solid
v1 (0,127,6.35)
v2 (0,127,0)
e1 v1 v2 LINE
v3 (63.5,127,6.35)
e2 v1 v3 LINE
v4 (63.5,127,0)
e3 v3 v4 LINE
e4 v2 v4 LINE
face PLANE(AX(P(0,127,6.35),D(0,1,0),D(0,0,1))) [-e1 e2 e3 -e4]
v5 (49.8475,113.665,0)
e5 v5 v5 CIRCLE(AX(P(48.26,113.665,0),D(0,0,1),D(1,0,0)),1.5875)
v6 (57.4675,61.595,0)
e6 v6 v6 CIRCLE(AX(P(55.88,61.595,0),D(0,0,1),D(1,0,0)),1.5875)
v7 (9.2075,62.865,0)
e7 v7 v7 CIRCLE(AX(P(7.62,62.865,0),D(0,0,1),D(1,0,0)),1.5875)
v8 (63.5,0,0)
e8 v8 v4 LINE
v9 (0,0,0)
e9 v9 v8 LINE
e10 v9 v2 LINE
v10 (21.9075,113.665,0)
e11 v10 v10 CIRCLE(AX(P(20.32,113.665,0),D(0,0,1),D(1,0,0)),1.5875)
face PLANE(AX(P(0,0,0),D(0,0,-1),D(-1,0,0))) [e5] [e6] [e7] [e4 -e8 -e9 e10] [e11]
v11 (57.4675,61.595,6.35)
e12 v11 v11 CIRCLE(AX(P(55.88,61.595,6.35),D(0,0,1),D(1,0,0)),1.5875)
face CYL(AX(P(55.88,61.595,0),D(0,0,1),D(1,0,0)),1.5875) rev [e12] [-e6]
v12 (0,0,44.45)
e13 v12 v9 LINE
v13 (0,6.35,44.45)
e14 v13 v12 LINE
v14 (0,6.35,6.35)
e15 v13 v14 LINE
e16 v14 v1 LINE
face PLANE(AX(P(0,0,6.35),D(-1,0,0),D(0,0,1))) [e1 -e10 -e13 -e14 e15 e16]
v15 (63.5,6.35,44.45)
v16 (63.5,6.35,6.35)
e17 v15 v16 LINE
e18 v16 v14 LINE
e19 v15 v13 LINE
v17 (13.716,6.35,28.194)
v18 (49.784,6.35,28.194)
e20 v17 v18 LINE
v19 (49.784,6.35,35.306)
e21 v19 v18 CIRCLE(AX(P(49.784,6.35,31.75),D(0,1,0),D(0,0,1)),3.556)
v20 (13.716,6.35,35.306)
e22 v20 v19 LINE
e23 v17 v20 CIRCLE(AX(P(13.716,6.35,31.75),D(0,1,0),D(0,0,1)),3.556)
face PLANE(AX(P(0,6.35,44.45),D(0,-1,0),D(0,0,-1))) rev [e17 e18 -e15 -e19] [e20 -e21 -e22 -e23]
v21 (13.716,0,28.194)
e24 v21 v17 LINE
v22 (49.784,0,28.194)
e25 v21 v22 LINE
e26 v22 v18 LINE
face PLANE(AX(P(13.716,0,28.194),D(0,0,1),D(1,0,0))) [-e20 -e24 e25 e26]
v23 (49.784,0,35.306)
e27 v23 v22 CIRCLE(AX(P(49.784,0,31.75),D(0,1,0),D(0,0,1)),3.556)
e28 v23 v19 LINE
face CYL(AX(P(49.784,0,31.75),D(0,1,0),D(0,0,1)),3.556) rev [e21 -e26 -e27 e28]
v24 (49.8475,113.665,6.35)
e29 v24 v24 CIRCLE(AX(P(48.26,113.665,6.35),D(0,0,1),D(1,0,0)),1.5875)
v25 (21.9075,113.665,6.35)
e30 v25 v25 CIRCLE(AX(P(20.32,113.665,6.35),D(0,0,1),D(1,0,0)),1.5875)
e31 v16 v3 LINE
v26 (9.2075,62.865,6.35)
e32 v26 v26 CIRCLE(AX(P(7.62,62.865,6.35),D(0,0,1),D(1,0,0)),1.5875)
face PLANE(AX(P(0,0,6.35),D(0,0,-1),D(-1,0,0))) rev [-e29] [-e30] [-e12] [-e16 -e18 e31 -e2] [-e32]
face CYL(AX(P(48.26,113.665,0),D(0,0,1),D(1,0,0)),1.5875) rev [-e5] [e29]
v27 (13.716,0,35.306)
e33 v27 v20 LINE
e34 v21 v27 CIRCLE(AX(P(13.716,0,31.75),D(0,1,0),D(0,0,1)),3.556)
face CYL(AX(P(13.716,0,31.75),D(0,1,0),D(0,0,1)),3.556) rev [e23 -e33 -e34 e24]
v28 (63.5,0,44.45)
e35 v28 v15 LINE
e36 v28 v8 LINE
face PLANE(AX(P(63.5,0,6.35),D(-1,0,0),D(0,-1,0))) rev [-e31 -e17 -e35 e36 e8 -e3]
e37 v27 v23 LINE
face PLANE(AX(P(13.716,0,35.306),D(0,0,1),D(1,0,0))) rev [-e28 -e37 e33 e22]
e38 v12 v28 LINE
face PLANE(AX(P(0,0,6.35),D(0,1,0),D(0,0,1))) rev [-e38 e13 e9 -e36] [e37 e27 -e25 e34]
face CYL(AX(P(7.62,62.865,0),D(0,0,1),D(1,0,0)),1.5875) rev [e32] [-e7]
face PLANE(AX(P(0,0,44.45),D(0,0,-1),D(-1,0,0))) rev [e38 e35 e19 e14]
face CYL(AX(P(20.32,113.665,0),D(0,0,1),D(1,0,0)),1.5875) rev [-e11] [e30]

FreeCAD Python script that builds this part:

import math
import FreeCAD as App
import Part
import Sketcher
from FreeCAD import Vector
Q = App.Units.Quantity

doc = App.newDocument("Part")
body = doc.addObject("PartDesign::Body", "Body")

# Sketch on XY plane
sketch1 = body.newObject("Sketcher::SketchObject", "Sketch")
sketch1.AttachmentSupport = (doc.getObject("XY_Plane"), [""])
sketch1.MapMode = "FlatFace"
sketch1.addGeometry([
    Part.LineSegment(Vector(0, 127, 0), Vector(0, 0, 0)),
    Part.LineSegment(Vector(0, 0, 0), Vector(63.5, 0, 0)),
    Part.LineSegment(Vector(63.5, 0, 0), Vector(63.5, 127, 0)),
    Part.LineSegment(Vector(63.5, 127, 0), Vector(0, 127, 0)),
], False)
sketch1.addConstraint([
    Sketcher.Constraint("Coincident", 0, 2, 1, 1),
    Sketcher.Constraint("Coincident", 1, 2, 2, 1),
    Sketcher.Constraint("Coincident", 2, 2, 3, 1),
    Sketcher.Constraint("Coincident", 3, 2, 0, 1),
    Sketcher.Constraint("Vertical", 0),
    Sketcher.Constraint("Horizontal", 1),
    Sketcher.Constraint("Vertical", 2),
    Sketcher.Constraint("Horizontal", 3),
    Sketcher.Constraint("Coincident", 0, 2, -1, 1),
    Sketcher.Constraint("DistanceY", 0, 2, 0, 1, Q("5 in")),
    Sketcher.Constraint("DistanceX", 1, 1, 1, 2, Q("2.5 in")),
])
pad1 = body.newObject("PartDesign::Pad", "Pad")
pad1.Profile = sketch1
pad1.Length = Q("0.25 in")

# Sketch on XY plane
sketch2 = body.newObject("Sketcher::SketchObject", "Sketch001")
sketch2.AttachmentSupport = (doc.getObject("XY_Plane"), [""])
sketch2.MapMode = "FlatFace"
sketch2.AttachmentOffset = App.Placement(Vector(0, 0, 0.25 * 25.4), App.Rotation())
sketch2.addGeometry([
    Part.Circle(Vector(55.88, 61.595, 0), Vector(0, 0, 1), 1.5875),
    Part.Circle(Vector(7.62, 62.865, 0), Vector(0, 0, 1), 1.5875),
    Part.Circle(Vector(20.32, 113.665, 0), Vector(0, 0, 1), 1.5875),
    Part.Circle(Vector(48.26, 113.665, 0), Vector(0, 0, 1), 1.5875),
], False)
sketch2.addConstraint([
    Sketcher.Constraint("Equal", 0, 1),
    Sketcher.Constraint("Equal", 1, 2),
    Sketcher.Constraint("Equal", 2, 3),
    Sketcher.Constraint("Horizontal", 2, 3, 3, 3),
    Sketcher.Constraint("Diameter", 0, Q("0.125 in")),
    Sketcher.Constraint("DistanceY", 1, 3, 2, 3, Q("2 in")),
    Sketcher.Constraint("DistanceX", -1, 1, 0, 3, Q("2.2 in")),
    Sketcher.Constraint("DistanceX", -1, 1, 1, 3, Q("0.3 in")),
    Sketcher.Constraint("DistanceX", -1, 1, 2, 3, Q("0.8 in")),
    Sketcher.Constraint("DistanceX", -1, 1, 3, 3, Q("1.9 in")),
    Sketcher.Constraint("DistanceY", 0, 3, 1, 3, Q("0.05 in")),
    Sketcher.Constraint("DistanceY", -1, 1, 0, 3, Q("2.425 in")),
])
pocket1 = body.newObject("PartDesign::Pocket", "Pocket")
pocket1.Profile = sketch2
pocket1.Type = "ThroughAll"

# Sketch on XY plane
sketch3 = body.newObject("Sketcher::SketchObject", "Sketch002")
sketch3.AttachmentSupport = (doc.getObject("XY_Plane"), [""])
sketch3.MapMode = "FlatFace"
sketch3.AttachmentOffset = App.Placement(Vector(0, 0, 0.25 * 25.4), App.Rotation())
sketch3.addGeometry([
    Part.LineSegment(Vector(0, 6.35, 0), Vector(0, 0, 0)),
    Part.LineSegment(Vector(0, 0, 0), Vector(63.5, 0, 0)),
    Part.LineSegment(Vector(63.5, 0, 0), Vector(63.5, 6.35, 0)),
    Part.LineSegment(Vector(63.5, 6.35, 0), Vector(0, 6.35, 0)),
], False)
sketch3.addConstraint([
    Sketcher.Constraint("Coincident", 0, 2, 1, 1),
    Sketcher.Constraint("Coincident", 1, 2, 2, 1),
    Sketcher.Constraint("Coincident", 2, 2, 3, 1),
    Sketcher.Constraint("Coincident", 3, 2, 0, 1),
    Sketcher.Constraint("Vertical", 0),
    Sketcher.Constraint("Horizontal", 1),
    Sketcher.Constraint("Vertical", 2),
    Sketcher.Constraint("Horizontal", 3),
    Sketcher.Constraint("Coincident", 0, 2, -1, 1),
    Sketcher.Constraint("DistanceX", 1, 1, 1, 2, Q("2.5 in")),
    Sketcher.Constraint("DistanceY", 0, 2, 0, 1, Q("0.25 in")),
])
pad2 = body.newObject("PartDesign::Pad", "Pad001")
pad2.Profile = sketch3
pad2.Length = Q("1.5 in")

# Sketch on XZ plane
sketch4 = body.newObject("Sketcher::SketchObject", "Sketch003")
sketch4.AttachmentSupport = (doc.getObject("XZ_Plane"), [""])
sketch4.MapMode = "FlatFace"
sketch4.AttachmentOffset = App.Placement(Vector(0, 0, -0.25 * 25.4), App.Rotation())
sketch4.addGeometry([
    Part.LineSegment(Vector(49.784, 28.194, 0), Vector(13.716, 28.194, 0)),
    Part.ArcOfCircle(Part.Circle(Vector(13.716, 31.75, 0), Vector(0, 0, 1), 3.556), math.radians(90), math.radians(270)),
    Part.LineSegment(Vector(13.716, 35.306, 0), Vector(49.784, 35.306, 0)),
    Part.ArcOfCircle(Part.Circle(Vector(49.784, 31.75, 0), Vector(0, 0, 1), 3.556), math.radians(-90), math.radians(90)),
], False)
sketch4.addConstraint([
    Sketcher.Constraint("Tangent", 0, 2, 1, 2),
    Sketcher.Constraint("Tangent", 1, 1, 2, 1),
    Sketcher.Constraint("Tangent", 2, 2, 3, 2),
    Sketcher.Constraint("Tangent", 3, 1, 0, 1),
    Sketcher.Constraint("Horizontal", 0),
    Sketcher.Constraint("Horizontal", 2),
    Sketcher.Constraint("Radius", 1, Q("0.14 in")),
    Sketcher.Constraint("DistanceX", 0, 2, 0, 1, Q("1.42 in")),
    Sketcher.Constraint("DistanceX", -1, 1, 1, 3, Q("0.54 in")),
    Sketcher.Constraint("DistanceY", -1, 1, 1, 3, Q("1.25 in")),
])
pocket2 = body.newObject("PartDesign::Pocket", "Pocket001")
pocket2.Profile = sketch4
pocket2.Type = "ThroughAll"
pocket2.Reversed = True

doc.recompute()
